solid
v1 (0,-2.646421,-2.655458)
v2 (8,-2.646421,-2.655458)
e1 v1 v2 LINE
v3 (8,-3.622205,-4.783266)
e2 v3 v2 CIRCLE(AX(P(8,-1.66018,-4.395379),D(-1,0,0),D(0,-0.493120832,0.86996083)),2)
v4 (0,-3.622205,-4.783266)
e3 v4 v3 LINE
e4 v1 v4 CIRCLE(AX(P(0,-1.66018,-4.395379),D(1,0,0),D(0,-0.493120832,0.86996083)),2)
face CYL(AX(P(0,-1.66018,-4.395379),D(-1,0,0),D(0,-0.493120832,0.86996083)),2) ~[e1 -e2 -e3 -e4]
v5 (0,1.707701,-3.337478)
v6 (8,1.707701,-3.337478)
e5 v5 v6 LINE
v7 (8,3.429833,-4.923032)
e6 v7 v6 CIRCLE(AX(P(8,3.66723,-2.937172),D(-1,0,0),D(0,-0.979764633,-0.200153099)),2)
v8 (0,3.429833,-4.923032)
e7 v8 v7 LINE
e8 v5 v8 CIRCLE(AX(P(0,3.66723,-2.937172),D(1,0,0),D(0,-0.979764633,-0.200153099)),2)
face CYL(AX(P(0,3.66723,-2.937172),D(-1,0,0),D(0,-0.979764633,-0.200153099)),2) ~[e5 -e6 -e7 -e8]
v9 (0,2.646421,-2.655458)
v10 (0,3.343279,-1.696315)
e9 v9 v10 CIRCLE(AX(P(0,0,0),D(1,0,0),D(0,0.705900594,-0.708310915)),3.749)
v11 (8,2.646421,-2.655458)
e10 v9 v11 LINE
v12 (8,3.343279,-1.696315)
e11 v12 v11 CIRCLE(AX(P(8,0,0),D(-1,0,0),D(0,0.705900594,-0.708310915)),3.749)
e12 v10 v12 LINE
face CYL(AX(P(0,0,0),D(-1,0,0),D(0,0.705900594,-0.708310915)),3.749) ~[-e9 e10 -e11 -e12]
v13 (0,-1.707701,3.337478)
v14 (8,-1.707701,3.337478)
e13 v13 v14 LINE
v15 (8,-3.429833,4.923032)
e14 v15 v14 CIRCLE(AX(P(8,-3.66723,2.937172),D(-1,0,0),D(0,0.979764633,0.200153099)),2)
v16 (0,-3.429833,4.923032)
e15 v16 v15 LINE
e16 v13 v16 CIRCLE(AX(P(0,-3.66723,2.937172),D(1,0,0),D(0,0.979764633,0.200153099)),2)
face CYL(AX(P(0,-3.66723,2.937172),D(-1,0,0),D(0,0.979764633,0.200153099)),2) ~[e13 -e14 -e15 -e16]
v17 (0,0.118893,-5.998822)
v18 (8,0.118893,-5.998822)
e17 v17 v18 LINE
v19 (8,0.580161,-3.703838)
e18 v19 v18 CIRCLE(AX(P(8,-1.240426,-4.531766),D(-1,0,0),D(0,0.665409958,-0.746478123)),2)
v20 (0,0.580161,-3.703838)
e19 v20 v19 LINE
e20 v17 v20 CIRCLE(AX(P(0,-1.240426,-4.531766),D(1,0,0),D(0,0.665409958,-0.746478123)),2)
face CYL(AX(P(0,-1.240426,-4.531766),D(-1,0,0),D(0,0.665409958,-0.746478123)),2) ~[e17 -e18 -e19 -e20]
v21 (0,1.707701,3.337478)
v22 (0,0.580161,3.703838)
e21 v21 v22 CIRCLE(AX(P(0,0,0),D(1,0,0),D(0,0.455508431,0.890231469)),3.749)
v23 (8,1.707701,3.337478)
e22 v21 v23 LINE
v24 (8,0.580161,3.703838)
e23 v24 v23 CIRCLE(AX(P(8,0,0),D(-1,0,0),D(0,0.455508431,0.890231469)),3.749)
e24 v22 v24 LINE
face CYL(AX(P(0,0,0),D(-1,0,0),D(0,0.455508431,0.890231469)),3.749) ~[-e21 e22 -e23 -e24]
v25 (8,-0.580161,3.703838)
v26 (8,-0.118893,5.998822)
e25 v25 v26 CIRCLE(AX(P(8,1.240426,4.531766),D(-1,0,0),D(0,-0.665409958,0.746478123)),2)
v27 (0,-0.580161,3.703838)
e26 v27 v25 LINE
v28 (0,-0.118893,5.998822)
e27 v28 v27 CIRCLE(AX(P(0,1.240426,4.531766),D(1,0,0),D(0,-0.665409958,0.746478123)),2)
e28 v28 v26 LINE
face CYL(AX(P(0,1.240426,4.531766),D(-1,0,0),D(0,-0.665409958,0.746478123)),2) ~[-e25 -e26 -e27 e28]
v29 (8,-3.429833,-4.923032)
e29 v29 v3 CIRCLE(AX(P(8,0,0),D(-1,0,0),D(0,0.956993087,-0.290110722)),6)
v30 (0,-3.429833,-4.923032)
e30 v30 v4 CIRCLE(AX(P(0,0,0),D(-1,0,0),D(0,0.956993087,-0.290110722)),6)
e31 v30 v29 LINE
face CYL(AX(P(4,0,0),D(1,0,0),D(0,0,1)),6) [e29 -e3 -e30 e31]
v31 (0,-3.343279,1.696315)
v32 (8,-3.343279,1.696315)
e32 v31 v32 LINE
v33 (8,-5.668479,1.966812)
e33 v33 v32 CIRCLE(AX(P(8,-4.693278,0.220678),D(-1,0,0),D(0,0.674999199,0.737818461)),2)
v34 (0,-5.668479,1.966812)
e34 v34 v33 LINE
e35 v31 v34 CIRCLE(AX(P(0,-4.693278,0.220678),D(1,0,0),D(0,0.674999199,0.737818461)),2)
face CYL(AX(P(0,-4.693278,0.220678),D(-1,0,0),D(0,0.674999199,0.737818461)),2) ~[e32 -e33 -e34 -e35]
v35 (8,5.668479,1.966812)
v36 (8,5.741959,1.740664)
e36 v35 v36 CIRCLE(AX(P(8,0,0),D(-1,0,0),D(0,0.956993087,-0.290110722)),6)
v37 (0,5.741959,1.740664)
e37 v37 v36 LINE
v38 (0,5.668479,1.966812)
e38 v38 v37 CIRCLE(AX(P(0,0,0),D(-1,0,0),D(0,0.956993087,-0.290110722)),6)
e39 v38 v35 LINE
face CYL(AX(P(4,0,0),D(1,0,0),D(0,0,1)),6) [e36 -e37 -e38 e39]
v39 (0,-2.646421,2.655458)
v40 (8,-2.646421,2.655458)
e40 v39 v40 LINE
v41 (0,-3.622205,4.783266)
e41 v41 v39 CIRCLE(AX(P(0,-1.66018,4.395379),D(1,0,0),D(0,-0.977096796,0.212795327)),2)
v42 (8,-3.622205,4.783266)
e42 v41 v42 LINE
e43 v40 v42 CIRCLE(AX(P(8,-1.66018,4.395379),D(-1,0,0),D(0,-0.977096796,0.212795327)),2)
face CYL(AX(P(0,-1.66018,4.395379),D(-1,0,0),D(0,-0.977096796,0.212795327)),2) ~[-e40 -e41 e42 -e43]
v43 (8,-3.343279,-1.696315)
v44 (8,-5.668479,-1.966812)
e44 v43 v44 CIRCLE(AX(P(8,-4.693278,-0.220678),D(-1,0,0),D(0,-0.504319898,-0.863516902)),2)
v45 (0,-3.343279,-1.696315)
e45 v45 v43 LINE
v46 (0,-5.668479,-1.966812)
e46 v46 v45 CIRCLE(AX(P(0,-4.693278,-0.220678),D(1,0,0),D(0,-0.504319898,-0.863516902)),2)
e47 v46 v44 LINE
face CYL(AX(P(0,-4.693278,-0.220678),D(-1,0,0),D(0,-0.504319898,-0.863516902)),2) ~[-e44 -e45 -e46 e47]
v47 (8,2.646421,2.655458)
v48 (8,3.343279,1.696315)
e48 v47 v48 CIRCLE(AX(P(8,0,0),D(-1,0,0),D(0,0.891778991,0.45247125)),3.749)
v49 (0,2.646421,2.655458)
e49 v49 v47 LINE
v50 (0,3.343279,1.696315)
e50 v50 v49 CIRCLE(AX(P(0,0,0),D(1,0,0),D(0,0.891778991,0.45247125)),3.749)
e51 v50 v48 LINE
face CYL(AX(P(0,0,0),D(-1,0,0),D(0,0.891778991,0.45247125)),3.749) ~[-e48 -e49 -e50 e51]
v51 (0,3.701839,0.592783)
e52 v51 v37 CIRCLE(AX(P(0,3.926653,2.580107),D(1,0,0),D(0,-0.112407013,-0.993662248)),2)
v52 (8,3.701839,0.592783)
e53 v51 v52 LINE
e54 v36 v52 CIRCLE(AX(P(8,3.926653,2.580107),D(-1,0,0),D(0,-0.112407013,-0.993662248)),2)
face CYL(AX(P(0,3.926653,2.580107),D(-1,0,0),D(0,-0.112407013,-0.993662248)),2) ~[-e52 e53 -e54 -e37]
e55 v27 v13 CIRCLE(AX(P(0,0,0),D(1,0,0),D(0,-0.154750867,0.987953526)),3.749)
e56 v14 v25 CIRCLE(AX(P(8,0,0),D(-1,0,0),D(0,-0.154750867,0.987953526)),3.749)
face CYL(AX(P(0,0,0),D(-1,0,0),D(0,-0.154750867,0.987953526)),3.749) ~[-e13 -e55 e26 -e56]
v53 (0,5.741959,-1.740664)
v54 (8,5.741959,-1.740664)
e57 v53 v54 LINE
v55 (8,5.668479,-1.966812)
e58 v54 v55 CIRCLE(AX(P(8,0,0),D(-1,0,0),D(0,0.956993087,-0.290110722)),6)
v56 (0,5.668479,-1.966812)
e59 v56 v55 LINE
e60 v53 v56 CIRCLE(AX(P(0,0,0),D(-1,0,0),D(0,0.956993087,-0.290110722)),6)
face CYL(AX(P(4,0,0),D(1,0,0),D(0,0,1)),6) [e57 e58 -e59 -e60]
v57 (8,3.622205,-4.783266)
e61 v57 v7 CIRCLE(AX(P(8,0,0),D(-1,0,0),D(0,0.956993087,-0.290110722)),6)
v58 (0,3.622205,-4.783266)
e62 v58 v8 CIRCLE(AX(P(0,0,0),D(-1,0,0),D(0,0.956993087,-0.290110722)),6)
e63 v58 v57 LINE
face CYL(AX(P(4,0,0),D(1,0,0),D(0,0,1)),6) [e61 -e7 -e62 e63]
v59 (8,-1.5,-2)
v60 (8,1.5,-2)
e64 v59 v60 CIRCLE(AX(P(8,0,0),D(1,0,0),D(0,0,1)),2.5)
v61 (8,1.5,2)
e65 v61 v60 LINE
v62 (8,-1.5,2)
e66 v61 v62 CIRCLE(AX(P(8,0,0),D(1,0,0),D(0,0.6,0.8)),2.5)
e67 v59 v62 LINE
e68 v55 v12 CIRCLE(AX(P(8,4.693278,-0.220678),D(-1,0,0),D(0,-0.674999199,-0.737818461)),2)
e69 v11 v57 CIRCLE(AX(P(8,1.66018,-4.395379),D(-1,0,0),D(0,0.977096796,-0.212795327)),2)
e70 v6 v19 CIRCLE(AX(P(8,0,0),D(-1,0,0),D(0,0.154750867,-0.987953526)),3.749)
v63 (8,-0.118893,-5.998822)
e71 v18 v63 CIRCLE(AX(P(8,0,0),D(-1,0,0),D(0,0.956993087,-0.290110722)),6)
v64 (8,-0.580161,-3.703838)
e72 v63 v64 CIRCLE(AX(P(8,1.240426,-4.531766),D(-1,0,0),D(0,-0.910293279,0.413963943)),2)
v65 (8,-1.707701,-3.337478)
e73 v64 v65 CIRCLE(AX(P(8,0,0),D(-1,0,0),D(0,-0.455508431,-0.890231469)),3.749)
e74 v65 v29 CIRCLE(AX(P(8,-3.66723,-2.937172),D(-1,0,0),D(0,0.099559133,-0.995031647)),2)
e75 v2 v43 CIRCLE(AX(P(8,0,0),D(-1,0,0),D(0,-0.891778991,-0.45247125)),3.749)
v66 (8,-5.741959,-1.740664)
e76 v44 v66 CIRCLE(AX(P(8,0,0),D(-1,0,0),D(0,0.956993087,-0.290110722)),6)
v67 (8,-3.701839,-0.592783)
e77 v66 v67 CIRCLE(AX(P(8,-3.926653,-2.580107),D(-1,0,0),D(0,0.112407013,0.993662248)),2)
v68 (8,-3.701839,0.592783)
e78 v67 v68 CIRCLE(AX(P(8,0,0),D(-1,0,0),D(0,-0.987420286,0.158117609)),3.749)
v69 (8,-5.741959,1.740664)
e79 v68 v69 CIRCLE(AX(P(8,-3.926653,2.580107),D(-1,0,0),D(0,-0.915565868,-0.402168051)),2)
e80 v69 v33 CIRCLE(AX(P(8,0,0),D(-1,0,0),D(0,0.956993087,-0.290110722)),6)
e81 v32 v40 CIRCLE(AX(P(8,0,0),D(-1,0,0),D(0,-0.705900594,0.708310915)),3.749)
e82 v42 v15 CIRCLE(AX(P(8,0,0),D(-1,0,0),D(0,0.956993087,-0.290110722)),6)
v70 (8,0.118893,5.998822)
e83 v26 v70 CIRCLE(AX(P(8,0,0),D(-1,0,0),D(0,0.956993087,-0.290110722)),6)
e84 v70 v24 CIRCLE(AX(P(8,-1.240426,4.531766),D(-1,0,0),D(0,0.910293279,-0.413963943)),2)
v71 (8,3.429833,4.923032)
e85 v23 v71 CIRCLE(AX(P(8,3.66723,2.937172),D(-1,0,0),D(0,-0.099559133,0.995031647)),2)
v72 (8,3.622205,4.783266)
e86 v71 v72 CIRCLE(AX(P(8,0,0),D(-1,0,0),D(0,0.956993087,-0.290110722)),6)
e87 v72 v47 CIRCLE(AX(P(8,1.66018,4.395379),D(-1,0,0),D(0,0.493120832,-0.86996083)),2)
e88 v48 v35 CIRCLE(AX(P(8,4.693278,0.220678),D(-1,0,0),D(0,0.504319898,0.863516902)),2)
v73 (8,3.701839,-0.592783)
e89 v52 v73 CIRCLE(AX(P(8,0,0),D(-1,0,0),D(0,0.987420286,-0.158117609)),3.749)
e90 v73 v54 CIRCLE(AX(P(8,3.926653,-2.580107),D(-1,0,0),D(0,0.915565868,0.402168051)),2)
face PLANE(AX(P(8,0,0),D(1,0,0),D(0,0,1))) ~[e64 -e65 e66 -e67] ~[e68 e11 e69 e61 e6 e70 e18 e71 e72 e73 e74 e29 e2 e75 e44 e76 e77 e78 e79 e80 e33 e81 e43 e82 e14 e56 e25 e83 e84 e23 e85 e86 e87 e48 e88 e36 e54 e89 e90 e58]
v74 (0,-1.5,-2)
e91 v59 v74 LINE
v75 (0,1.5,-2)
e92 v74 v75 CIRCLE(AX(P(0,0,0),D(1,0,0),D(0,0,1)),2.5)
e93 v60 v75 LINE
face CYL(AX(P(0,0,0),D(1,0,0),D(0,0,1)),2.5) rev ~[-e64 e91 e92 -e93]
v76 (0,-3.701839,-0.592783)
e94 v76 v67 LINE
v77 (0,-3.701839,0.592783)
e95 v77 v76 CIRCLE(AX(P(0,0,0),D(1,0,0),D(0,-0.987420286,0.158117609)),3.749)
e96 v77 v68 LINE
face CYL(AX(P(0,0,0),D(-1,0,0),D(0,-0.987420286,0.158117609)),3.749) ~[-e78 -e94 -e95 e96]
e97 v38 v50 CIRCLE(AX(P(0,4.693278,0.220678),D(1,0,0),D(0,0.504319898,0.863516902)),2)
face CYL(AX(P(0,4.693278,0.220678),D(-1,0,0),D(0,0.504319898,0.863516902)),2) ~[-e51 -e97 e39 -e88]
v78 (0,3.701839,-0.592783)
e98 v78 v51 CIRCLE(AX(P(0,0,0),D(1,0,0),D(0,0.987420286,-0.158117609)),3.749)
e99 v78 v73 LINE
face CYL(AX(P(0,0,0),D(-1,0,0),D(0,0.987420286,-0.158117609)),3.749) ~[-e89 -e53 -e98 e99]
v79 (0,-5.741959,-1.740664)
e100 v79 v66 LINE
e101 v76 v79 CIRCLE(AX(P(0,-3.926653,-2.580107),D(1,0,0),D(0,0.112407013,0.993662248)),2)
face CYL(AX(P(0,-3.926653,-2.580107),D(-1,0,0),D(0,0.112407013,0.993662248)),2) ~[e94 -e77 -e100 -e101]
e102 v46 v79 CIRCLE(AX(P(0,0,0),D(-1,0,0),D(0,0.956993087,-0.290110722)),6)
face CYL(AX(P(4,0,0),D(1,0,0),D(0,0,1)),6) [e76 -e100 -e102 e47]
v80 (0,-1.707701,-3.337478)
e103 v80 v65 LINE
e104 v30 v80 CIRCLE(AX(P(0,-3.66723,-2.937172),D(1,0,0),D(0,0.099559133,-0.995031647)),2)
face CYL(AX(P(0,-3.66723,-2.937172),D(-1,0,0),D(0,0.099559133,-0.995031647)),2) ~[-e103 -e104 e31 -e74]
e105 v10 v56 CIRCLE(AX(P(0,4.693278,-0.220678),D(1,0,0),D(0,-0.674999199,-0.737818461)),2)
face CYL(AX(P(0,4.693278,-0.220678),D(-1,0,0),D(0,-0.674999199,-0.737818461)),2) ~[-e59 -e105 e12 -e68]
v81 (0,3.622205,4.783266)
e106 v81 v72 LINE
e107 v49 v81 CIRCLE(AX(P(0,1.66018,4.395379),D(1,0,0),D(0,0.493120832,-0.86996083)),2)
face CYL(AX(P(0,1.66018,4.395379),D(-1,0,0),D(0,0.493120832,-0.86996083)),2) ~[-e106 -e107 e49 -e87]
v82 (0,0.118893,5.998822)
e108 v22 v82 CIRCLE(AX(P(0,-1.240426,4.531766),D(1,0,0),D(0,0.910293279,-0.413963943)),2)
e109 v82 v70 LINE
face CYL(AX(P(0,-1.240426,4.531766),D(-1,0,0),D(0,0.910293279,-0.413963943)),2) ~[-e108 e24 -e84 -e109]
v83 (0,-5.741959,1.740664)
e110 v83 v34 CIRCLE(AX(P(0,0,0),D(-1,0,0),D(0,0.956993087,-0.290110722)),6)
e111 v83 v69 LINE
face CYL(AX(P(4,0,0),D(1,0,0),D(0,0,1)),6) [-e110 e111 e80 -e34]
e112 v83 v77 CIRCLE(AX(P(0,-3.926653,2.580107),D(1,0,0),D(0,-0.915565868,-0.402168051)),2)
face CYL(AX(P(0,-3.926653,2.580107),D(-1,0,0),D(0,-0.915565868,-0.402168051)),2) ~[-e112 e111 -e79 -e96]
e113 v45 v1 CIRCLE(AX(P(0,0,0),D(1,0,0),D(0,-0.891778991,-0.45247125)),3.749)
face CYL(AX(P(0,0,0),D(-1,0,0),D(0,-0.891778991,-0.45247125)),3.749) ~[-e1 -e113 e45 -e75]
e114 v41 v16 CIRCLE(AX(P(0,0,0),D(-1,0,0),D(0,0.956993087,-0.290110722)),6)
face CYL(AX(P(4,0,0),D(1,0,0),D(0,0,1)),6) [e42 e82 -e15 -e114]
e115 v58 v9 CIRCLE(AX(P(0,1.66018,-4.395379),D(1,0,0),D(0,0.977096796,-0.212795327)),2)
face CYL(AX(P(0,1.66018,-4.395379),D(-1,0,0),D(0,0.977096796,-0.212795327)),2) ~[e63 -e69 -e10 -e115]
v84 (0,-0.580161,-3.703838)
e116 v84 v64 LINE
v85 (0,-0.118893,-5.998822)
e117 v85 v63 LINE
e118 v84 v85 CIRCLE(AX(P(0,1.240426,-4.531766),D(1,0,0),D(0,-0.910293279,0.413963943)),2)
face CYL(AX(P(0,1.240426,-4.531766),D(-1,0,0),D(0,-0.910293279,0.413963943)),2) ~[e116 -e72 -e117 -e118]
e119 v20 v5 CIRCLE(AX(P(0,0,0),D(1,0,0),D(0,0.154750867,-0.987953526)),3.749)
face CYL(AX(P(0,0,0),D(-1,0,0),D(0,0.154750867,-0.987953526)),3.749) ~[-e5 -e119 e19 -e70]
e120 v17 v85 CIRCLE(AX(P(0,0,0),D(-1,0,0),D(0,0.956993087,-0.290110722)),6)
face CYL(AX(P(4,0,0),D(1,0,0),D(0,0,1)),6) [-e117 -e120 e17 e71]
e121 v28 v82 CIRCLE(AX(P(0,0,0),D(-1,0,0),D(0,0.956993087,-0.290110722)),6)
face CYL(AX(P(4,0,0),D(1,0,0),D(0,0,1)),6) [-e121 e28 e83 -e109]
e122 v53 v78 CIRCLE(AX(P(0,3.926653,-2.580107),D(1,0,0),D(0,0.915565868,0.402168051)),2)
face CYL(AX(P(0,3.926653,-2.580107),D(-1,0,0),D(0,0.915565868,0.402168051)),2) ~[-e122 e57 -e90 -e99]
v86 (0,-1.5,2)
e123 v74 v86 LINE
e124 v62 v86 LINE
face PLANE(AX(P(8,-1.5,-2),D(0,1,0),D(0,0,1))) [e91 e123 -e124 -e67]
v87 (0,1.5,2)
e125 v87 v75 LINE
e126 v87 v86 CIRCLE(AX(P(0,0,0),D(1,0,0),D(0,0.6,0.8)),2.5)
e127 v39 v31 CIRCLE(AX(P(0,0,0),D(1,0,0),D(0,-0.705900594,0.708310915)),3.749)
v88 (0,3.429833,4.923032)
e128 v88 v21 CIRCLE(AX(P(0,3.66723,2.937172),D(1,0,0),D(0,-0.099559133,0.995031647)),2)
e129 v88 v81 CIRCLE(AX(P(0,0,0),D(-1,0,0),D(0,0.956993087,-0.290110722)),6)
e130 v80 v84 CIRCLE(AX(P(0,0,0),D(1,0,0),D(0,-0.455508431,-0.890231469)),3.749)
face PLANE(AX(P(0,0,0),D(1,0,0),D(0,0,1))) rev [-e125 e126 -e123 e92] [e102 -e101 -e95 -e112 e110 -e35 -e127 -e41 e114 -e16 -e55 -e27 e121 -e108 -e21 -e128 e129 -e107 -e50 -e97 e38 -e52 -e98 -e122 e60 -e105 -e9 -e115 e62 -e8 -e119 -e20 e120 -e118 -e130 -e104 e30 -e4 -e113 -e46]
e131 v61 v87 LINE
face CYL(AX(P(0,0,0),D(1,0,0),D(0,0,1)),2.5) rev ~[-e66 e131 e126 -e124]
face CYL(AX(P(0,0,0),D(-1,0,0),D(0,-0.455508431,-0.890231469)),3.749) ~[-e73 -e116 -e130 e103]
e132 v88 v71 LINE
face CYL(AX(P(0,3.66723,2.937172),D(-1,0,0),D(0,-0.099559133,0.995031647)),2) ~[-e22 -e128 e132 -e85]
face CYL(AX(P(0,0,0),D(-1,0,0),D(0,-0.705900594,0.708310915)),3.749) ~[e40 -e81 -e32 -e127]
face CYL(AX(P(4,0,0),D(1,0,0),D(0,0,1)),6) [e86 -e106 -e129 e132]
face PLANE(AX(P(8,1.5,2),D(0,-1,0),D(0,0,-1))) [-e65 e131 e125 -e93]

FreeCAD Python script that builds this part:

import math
import FreeCAD as App
import Part
import Sketcher


def add_polygon(sketch, points):
    """Adds a closed chain of lines whose ends are joined by coincident constraints."""
    first, n = sketch.GeometryCount, len(points)
    for a, b in zip(points, points[1:] + points[:1]):
        sketch.addGeometry(Part.LineSegment(App.Vector(*a, 0), App.Vector(*b, 0)), False)
    for i in range(n):
        sketch.addConstraint(Sketcher.Constraint("Coincident", first + i, 2, first + (i + 1) % n, 1))

doc = App.newDocument("Part")
body = doc.addObject("PartDesign::Body", "Body")

sketch1 = doc.addObject("Sketcher::SketchObject", "Sketch")
body.addObject(sketch1)
sketch1.AttachmentSupport = (doc.XZ_Plane, [""])
sketch1.MapMode = "FlatFace"
add_polygon(sketch1, [(0, -6), (0, 0), (8, 0), (8, -6)])
sketch1.addConstraint([
    Sketcher.Constraint("Vertical", 0),
    Sketcher.Constraint("Horizontal", 1),
    Sketcher.Constraint("Vertical", 2),
    Sketcher.Constraint("Horizontal", 3),
    Sketcher.Constraint("Coincident", 0, 2, -1, 1),
    Sketcher.Constraint("DistanceX", 1, 1, 1, 2, 8.0),
    Sketcher.Constraint("DistanceY", 0, 1, 0, 2, 6.0),
])
revolution = doc.addObject("PartDesign::Revolution", "Revolution")
body.addObject(revolution)
revolution.Profile = sketch1
revolution.ReferenceAxis = (sketch1, ["H_Axis"])
revolution.Angle = 360

sketch2 = doc.addObject("Sketcher::SketchObject", "Sketch001")
body.addObject(sketch2)
sketch2.AttachmentSupport = (doc.YZ_Plane, [""])
sketch2.MapMode = "FlatFace"
sketch2.addGeometry([
    Part.ArcOfCircle(Part.Circle(App.Vector(0, 0, 0), App.Vector(0, 0, 1), 3.749), math.radians(-9.097652), math.radians(9.097652)),
    Part.ArcOfCircle(Part.Circle(App.Vector(3.926653, -2.580107, 0), App.Vector(0, 0, 1), 2), math.radians(23.713784), math.radians(96.454088)),
    Part.ArcOfCircle(Part.Circle(App.Vector(0, 0, 0), App.Vector(0, 0, 1), 6.0254), math.radians(-17.140404), math.radians(17.140404)),
    Part.ArcOfCircle(Part.Circle(App.Vector(3.926653, 2.580107, 0), App.Vector(0, 0, 1), 2), math.radians(-96.454088), math.radians(-23.713784)),
], False)
sketch2.addConstraint([
    Sketcher.Constraint("Coincident", 0, 1, 1, 2),
    Sketcher.Constraint("Coincident", 1, 1, 2, 1),
    Sketcher.Constraint("Coincident", 2, 2, 3, 2),
    Sketcher.Constraint("Coincident", 3, 1, 0, 2),
    Sketcher.Constraint("Coincident", 0, 3, -1, 1),
    Sketcher.Constraint("Coincident", 2, 3, -1, 1),
    Sketcher.Constraint("Equal", 1, 3),
    Sketcher.Constraint("Symmetric", 1, 3, 3, 3, -1),
    Sketcher.Constraint("Radius", 1, 2.0),
    Sketcher.Constraint("Radius", 0, 3.749),
    Sketcher.Constraint("Radius", 2, 6.0254),
    Sketcher.Constraint("DistanceX", -1, 1, 0, 1, 3.701839),
    Sketcher.Constraint("DistanceY", 1, 1, -1, 1, 1.775771),
])
pocket1 = doc.addObject("PartDesign::Pocket", "Pocket")
body.addObject(pocket1)
pocket1.Profile = sketch2
pocket1.Type = "ThroughAll"
pocket1.Reversed = True
doc.recompute()

polarpattern = doc.addObject("PartDesign::PolarPattern", "PolarPattern")
body.addObject(polarpattern)
polarpattern.Originals = [pocket1]
polarpattern.Axis = (doc.X_Axis, [""])
polarpattern.Angle = 360
polarpattern.Occurrences = 10
body.Tip = polarpattern

sketch3 = doc.addObject("Sketcher::SketchObject", "Sketch002")
body.addObject(sketch3)
sketch3.AttachmentSupport = (doc.YZ_Plane, [""])
sketch3.MapMode = "FlatFace"
sketch3.addGeometry(Part.Circle(App.Vector(0, 0, 0), App.Vector(0, 0, 1), 2.5), False)
sketch3.addConstraint([
    Sketcher.Constraint("Coincident", 0, 3, -1, 1),
    Sketcher.Constraint("Diameter", 0, 5.0),
])
pocket2 = doc.addObject("PartDesign::Pocket", "Pocket001")
body.addObject(pocket2)
pocket2.Profile = sketch3
pocket2.Length = 100.000102
pocket2.Midplane = True

sketch4 = doc.addObject("Sketcher::SketchObject", "Sketch003")
body.addObject(sketch4)
sketch4.AttachmentSupport = (doc.YZ_Plane, [""])
sketch4.MapMode = "FlatFace"
sketch4.AttachmentOffset = App.Placement(App.Vector(0, 0, 8), App.Rotation())
sketch4.addGeometry([
    Part.ArcOfCircle(Part.Circle(App.Vector(0, 0, 0), App.Vector(0, 0, 1), 2.5), math.radians(-53.130102), math.radians(53.130102)),
    Part.LineSegment(App.Vector(1.5, 2, 0), App.Vector(1.5, -2, 0)),
    Part.LineSegment(App.Vector(-1.5, -2, 0), App.Vector(-1.5, 2, 0)),
    Part.ArcOfCircle(Part.Circle(App.Vector(0, 0, 0), App.Vector(0, 0, 1), 2.5), math.radians(126.869898), math.radians(233.130102)),
], False)
sketch4.addConstraint([
    Sketcher.Constraint("Coincident", 0, 1, 1, 2),
    Sketcher.Constraint("Coincident", 1, 1, 0, 2),
    Sketcher.Constraint("Coincident", 2, 1, 3, 2),
    Sketcher.Constraint("Coincident", 3, 1, 2, 2),
    Sketcher.Constraint("Vertical", 1),
    Sketcher.Constraint("Vertical", 2),
    Sketcher.Constraint("Coincident", 0, 3, -1, 1),
    Sketcher.Constraint("Coincident", 3, 3, -1, 1),
    Sketcher.Constraint("Equal", 0, 3),
    Sketcher.Constraint("Horizontal", 0, 1, 2, 1),
    Sketcher.Constraint("Radius", 0, 2.5),
    Sketcher.Constraint("DistanceY", 1, 2, 1, 1, 4.0),
])
pad1 = doc.addObject("PartDesign::Pad", "Pad")
body.addObject(pad1)
pad1.Profile = sketch4
pad1.Length = 8
pad1.Reversed = True

doc.recompute()
